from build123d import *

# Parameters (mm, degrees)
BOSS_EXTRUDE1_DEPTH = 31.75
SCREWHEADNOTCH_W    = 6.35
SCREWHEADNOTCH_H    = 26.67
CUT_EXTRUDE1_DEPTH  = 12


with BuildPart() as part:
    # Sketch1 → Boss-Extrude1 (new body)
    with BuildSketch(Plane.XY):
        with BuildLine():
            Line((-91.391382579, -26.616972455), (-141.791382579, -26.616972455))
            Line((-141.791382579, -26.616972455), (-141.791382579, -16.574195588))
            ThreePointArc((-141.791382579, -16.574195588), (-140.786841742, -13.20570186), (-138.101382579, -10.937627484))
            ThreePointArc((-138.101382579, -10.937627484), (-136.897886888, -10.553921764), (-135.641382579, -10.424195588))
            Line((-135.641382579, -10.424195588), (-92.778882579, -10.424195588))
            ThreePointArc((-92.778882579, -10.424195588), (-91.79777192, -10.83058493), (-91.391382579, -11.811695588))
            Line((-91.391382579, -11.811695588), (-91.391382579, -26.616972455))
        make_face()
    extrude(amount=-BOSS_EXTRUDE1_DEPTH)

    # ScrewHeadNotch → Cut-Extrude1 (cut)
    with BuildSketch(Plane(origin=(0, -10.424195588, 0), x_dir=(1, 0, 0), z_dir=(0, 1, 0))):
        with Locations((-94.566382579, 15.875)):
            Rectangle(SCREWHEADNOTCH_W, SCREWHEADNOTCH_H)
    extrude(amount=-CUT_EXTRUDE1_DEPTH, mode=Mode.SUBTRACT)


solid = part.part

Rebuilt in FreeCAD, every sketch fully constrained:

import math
import FreeCAD as App
import Part
import Sketcher
Q = App.Units.Quantity

doc = App.newDocument("Part")
body = doc.addObject("PartDesign::Body", "Body")

# Sketch on XY plane
sketch1 = body.newObject("Sketcher::SketchObject", "Sketch")
sketch1.AttachmentSupport = (doc.getObject("XY_Plane"), [""])
sketch1.MapMode = "FlatFace"
sketch1.addGeometry(Part.LineSegment(App.Vector(-141.8, -26.6, 0), App.Vector(-91.4, -26.6, 0)), False)
sketch1.addGeometry(Part.LineSegment(App.Vector(-91.4, -26.6, 0), App.Vector(-91.4, -11.8, 0)), False)
sketch1.addGeometry(Part.ArcOfCircle(Part.Circle(App.Vector(-92.8, -11.8, 0), App.Vector(0, 0, 1), 1.4), math.radians(0), math.radians(90)), False)
sketch1.addGeometry(Part.LineSegment(App.Vector(-92.8, -10.4, 0), App.Vector(-135.6, -10.4, 0)), False)
sketch1.addGeometry(Part.ArcOfCircle(Part.Circle(App.Vector(-135.6, -16.6, 0), App.Vector(0, 0, 1), 6.2), math.radians(90), math.radians(114)), False)
sketch1.addGeometry(Part.ArcOfCircle(Part.Circle(App.Vector(-135.6, -16.6, 0), App.Vector(0, 0, 1), 6.2), math.radians(114), math.radians(180)), False)
sketch1.addGeometry(Part.LineSegment(App.Vector(-141.8, -16.6, 0), App.Vector(-141.8, -26.6, 0)), False)
sketch1.addConstraint(Sketcher.Constraint("Coincident", 0, 2, 1, 1))
sketch1.addConstraint(Sketcher.Constraint("Tangent", 1, 2, 2, 1))
sketch1.addConstraint(Sketcher.Constraint("Tangent", 2, 2, 3, 1))
sketch1.addConstraint(Sketcher.Constraint("Tangent", 3, 2, 4, 1))
sketch1.addConstraint(Sketcher.Constraint("Tangent", 4, 2, 5, 1))
sketch1.addConstraint(Sketcher.Constraint("Tangent", 5, 2, 6, 1))
sketch1.addConstraint(Sketcher.Constraint("Coincident", 6, 2, 0, 1))
sketch1.addConstraint(Sketcher.Constraint("Horizontal", 0))
sketch1.addConstraint(Sketcher.Constraint("Vertical", 1))
sketch1.addConstraint(Sketcher.Constraint("Horizontal", 3))
sketch1.addConstraint(Sketcher.Constraint("Vertical", 6))
sketch1.addConstraint(Sketcher.Constraint("Equal", 4, 5))
sketch1.addConstraint(Sketcher.Constraint("DistanceX", 3, 2, 3, 1, Q("1.6875 in")))
sketch1.addConstraint(Sketcher.Constraint("Radius", 2, 1.3875))
sketch1.addConstraint(Sketcher.Constraint("Radius", 4, 6.15))
sketch1.addConstraint(Sketcher.Constraint("DistanceX", 4, 2, 3, 2, 2.46))
sketch1.addConstraint(Sketcher.Constraint("DistanceY", 1, 1, 1, 2, 14.805277))
sketch1.addConstraint(Sketcher.Constraint("DistanceX", 2, 3, -1, 1, 92.778883))
sketch1.addConstraint(Sketcher.Constraint("DistanceY", 2, 3, -1, 1, 11.811696))
pad1 = body.newObject("PartDesign::Pad", "Pad")
pad1.Profile = sketch1
pad1.Length = Q("1.25 in")
pad1.Reversed = True

# Sketch on XZ plane
sketch2 = body.newObject("Sketcher::SketchObject", "Sketch001")
sketch2.AttachmentSupport = (doc.getObject("XZ_Plane"), [""])
sketch2.MapMode = "FlatFace"
sketch2.AttachmentOffset = App.Placement(App.Vector(0, 0, 10.424196), App.Rotation())
sketch2.addGeometry(Part.LineSegment(App.Vector(-98, -29, 0), App.Vector(-98, -3, 0)), False)
sketch2.addGeometry(Part.LineSegment(App.Vector(-98, -3, 0), App.Vector(-91, -3, 0)), False)
sketch2.addGeometry(Part.LineSegment(App.Vector(-91, -3, 0), App.Vector(-91, -29, 0)), False)
sketch2.addGeometry(Part.LineSegment(App.Vector(-91, -29, 0), App.Vector(-98, -29, 0)), False)
sketch2.addConstraint(Sketcher.Constraint("Coincident", 0, 2, 1, 1))
sketch2.addConstraint(Sketcher.Constraint("Coincident", 1, 2, 2, 1))
sketch2.addConstraint(Sketcher.Constraint("Coincident", 2, 2, 3, 1))
sketch2.addConstraint(Sketcher.Constraint("Coincident", 3, 2, 0, 1))
sketch2.addConstraint(Sketcher.Constraint("Vertical", 0))
sketch2.addConstraint(Sketcher.Constraint("Horizontal", 1))
sketch2.addConstraint(Sketcher.Constraint("Vertical", 2))
sketch2.addConstraint(Sketcher.Constraint("Horizontal", 3))
sketch2.addConstraint(Sketcher.Constraint("DistanceX", 1, 1, 1, 2, Q("0.25 in")))
sketch2.addConstraint(Sketcher.Constraint("DistanceY", 0, 1, 0, 2, Q("1.05 in")))
sketch2.addConstraint(Sketcher.Constraint("DistanceY", 0, 2, -1, 1, Q("0.1 in")))
sketch2.addConstraint(Sketcher.Constraint("DistanceX", 0, 2, -1, 1, 97.741383))
pocket1 = body.newObject("PartDesign::Pocket", "Pocket")
pocket1.Profile = sketch2
pocket1.Length = 12
pocket1.Reversed = True

doc.recompute()
